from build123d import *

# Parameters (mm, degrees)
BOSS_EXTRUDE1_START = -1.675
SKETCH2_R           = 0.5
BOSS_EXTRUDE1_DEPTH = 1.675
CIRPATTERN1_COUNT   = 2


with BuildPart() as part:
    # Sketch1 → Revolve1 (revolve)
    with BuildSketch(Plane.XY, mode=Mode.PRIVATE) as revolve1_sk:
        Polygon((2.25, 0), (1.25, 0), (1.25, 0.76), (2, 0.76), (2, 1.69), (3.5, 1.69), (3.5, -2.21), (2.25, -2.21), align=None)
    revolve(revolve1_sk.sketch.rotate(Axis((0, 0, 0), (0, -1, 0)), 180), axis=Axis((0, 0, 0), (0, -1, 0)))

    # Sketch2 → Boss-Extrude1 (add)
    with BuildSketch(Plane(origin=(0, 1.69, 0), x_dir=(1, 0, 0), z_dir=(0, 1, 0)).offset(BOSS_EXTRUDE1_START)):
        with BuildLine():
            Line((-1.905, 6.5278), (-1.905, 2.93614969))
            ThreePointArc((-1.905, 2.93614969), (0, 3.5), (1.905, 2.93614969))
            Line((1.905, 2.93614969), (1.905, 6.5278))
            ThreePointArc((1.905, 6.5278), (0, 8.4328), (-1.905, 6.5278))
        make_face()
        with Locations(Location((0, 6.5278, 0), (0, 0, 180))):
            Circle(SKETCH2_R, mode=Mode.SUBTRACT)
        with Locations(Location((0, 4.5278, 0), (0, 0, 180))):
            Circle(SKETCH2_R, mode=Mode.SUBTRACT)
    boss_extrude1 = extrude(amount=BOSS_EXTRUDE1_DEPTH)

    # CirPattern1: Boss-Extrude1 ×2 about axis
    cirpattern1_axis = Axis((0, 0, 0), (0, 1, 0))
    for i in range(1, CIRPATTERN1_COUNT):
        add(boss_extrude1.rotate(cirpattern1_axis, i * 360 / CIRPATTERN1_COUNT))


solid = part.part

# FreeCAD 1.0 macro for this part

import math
import FreeCAD as App
import Part
import Sketcher

V = App.Vector
Q = App.Units.Quantity

doc = App.newDocument("Part")
body = doc.addObject("PartDesign::Body", "Body")

# Sketch on XY plane
sketch1 = doc.addObject("Sketcher::SketchObject", "Sketch")
body.addObject(sketch1)
sketch1.AttachmentSupport = (doc.XY_Plane, [""])
sketch1.MapMode = "FlatFace"
sketch1.addGeometry([
    Part.LineSegment(V(1.2, 0, 0), V(2.2, 0, 0)),  # 0
    Part.LineSegment(V(2.2, 0, 0), V(2.2, -2.2, 0)),  # 1
    Part.LineSegment(V(2.2, -2.2, 0), V(3.5, -2.2, 0)),  # 2
    Part.LineSegment(V(3.5, -2.2, 0), V(3.5, 1.7, 0)),  # 3
    Part.LineSegment(V(3.5, 1.7, 0), V(2, 1.7, 0)),  # 4
    Part.LineSegment(V(2, 1.7, 0), V(2, 0.8, 0)),  # 5
    Part.LineSegment(V(2, 0.8, 0), V(1.2, 0.8, 0)),  # 6
    Part.LineSegment(V(1.2, 0.8, 0), V(1.2, 0, 0)),  # 7
], False)
sketch1.addConstraint([
    Sketcher.Constraint("Coincident", 0, 2, 1, 1),
    Sketcher.Constraint("Coincident", 1, 2, 2, 1),
    Sketcher.Constraint("Coincident", 2, 2, 3, 1),
    Sketcher.Constraint("Coincident", 3, 2, 4, 1),
    Sketcher.Constraint("Coincident", 4, 2, 5, 1),
    Sketcher.Constraint("Coincident", 5, 2, 6, 1),
    Sketcher.Constraint("Coincident", 6, 2, 7, 1),
    Sketcher.Constraint("Coincident", 7, 2, 0, 1),
    Sketcher.Constraint("Horizontal", 0),
    Sketcher.Constraint("Vertical", 1),
    Sketcher.Constraint("Horizontal", 2),
    Sketcher.Constraint("Vertical", 3),
    Sketcher.Constraint("Horizontal", 4),
    Sketcher.Constraint("Vertical", 5),
    Sketcher.Constraint("Horizontal", 6),
    Sketcher.Constraint("Vertical", 7),
    Sketcher.Constraint("PointOnObject", 0, 2, -1),
    Sketcher.Constraint("DistanceX", 0, 1, 0, 2, Q("1 mm")),
    Sketcher.Constraint("DistanceX", 4, 2, 4, 1, Q("1.5 mm")),
    Sketcher.Constraint("DistanceY", 3, 1, 3, 2, Q("3.9 mm")),
    Sketcher.Constraint("DistanceX", -1, 1, 4, 2, Q("2 mm")),
    Sketcher.Constraint("DistanceX", 2, 1, 2, 2, Q("1.25 mm")),
    Sketcher.Constraint("DistanceY", 1, 2, 1, 1, Q("2.21 mm")),
    Sketcher.Constraint("DistanceY", 5, 2, 5, 1, Q("0.93 mm")),
])
revolution = doc.addObject("PartDesign::Revolution", "Revolution")
body.addObject(revolution)
revolution.Profile = sketch1
revolution.ReferenceAxis = (sketch1, ["V_Axis"])
revolution.Angle = 360

# Sketch on XZ plane
sketch2 = doc.addObject("Sketcher::SketchObject", "Sketch001")
body.addObject(sketch2)
sketch2.AttachmentSupport = (doc.XZ_Plane, [""])
sketch2.MapMode = "FlatFace"
sketch2.AttachmentOffset = App.Placement(V(0, 0, -0.015), App.Rotation())
sketch2.addGeometry([
    Part.LineSegment(V(-1.9, -6.5, 0), V(-1.9, -2.9, 0)),  # 0
    Part.ArcOfCircle(Part.Circle(V(0, 0, 0), V(0, 0, 1), 3.5), math.radians(-123), math.radians(-57)),  # 1
    Part.LineSegment(V(1.9, -2.9, 0), V(1.9, -6.5, 0)),  # 2
    Part.ArcOfCircle(Part.Circle(V(0, -6.5, 0), V(0, 0, 1), 1.9), math.radians(180), math.radians(360)),  # 3
    Part.Circle(V(0, -4.5, 0), V(0, 0, 1), 0.5),  # 4
    Part.Circle(V(0, -6.5, 0), V(0, 0, 1), 0.5),  # 5
], False)
sketch2.addConstraint([
    Sketcher.Constraint("Coincident", 0, 2, 1, 1),
    Sketcher.Constraint("Coincident", 1, 2, 2, 1),
    Sketcher.Constraint("Tangent", 2, 2, 3, 2),
    Sketcher.Constraint("Tangent", 3, 1, 0, 1),
    Sketcher.Constraint("Vertical", 0),
    Sketcher.Constraint("Vertical", 2),
    Sketcher.Constraint("Coincident", 1, 3, -1, 1),
    Sketcher.Constraint("Coincident", 5, 3, 3, 3),
    Sketcher.Constraint("Equal", 4, 5),
    Sketcher.Constraint("PointOnObject", 3, 3, -2),
    Sketcher.Constraint("PointOnObject", 4, 3, -2),
    Sketcher.Constraint("Diameter", 4, Q("1 mm")),
    Sketcher.Constraint("Radius", 1, Q("3.5 mm")),
    Sketcher.Constraint("Radius", 3, Q("1.905 mm")),
    Sketcher.Constraint("DistanceY", 3, 3, 4, 3, Q("2 mm")),
    Sketcher.Constraint("DistanceY", 0, 1, 0, 2, Q("3.59165 mm")),
])
pad1 = doc.addObject("PartDesign::Pad", "Pad")
body.addObject(pad1)
pad1.Profile = sketch2
pad1.Length = 1.675
pad1.Reversed = True
doc.recompute()

polarpattern = doc.addObject("PartDesign::PolarPattern", "PolarPattern")
body.addObject(polarpattern)
polarpattern.Originals = [pad1]
polarpattern.Axis = (doc.Y_Axis, [""])
polarpattern.Angle = 360
polarpattern.Occurrences = 2
body.Tip = polarpattern

doc.recompute()
